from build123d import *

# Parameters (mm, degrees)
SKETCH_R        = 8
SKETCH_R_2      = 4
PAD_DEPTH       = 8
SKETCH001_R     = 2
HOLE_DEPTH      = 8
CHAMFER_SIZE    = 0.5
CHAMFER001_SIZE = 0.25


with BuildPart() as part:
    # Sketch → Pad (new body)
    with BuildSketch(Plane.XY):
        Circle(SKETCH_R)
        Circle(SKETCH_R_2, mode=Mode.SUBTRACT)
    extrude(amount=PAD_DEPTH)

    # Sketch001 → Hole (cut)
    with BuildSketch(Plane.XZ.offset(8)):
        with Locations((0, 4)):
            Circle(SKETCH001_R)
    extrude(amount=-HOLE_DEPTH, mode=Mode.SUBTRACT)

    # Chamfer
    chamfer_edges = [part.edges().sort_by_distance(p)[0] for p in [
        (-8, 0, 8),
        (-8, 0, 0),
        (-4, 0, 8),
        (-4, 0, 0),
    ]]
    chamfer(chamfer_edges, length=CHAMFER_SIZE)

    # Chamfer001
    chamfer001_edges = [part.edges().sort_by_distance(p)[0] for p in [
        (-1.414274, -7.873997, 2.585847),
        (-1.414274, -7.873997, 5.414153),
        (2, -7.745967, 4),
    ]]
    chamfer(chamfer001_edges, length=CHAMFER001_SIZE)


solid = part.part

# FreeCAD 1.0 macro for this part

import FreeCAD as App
import Part
import Sketcher

V = App.Vector


def edges_at(feature, points):
    """Names of the edges that pass closest to the given points."""
    edges = feature.Shape.Edges
    near = lambda p: min(range(len(edges)), key=lambda i: edges[i].distToShape(Part.Vertex(*p))[0])
    return sorted({f"Edge{near(p) + 1}" for p in points})

doc = App.newDocument("Part")
body = doc.addObject("PartDesign::Body", "Body")

# Sketch on XY plane
sketch1 = body.newObject("Sketcher::SketchObject", "Sketch")
sketch1.AttachmentSupport = (doc.getObject("XY_Plane"), [""])
sketch1.MapMode = "FlatFace"
sketch1.addGeometry([
    Part.Circle(V(0, 0, 0), V(0, 0, 1), 8),
    Part.Circle(V(0, 0, 0), V(0, 0, 1), 4),
], False)
sketch1.addConstraint([
    Sketcher.Constraint("Coincident", 0, 3, -1, 1),
    Sketcher.Constraint("Coincident", 1, 3, -1, 1),
    Sketcher.Constraint("Diameter", 0, 16.0),
    Sketcher.Constraint("Diameter", 1, 8.0),
])
pad1 = body.newObject("PartDesign::Pad", "Pad")
pad1.Profile = sketch1
pad1.Length = 8

# Sketch on XZ plane
sketch2 = body.newObject("Sketcher::SketchObject", "Sketch001")
sketch2.AttachmentSupport = (doc.getObject("XZ_Plane"), [""])
sketch2.MapMode = "FlatFace"
sketch2.AttachmentOffset = App.Placement(V(0, 0, 8), App.Rotation())
sketch2.addGeometry(Part.Circle(V(0, 4, 0), V(0, 0, 1), 2), False)
sketch2.addConstraint([
    Sketcher.Constraint("PointOnObject", 0, 3, -2),
    Sketcher.Constraint("Diameter", 0, 4.0),
    Sketcher.Constraint("DistanceY", -1, 1, 0, 3, 4.0),
])
pocket1 = body.newObject("PartDesign::Pocket", "Pocket")
pocket1.Profile = sketch2
pocket1.Length = 8
doc.recompute()

chamfer = body.newObject("PartDesign::Chamfer", "Chamfer")
chamfer.Base = (pocket1, edges_at(pocket1, [
    (-8, 0, 8),
    (-8, 0, 0),
    (-4, 0, 8),
    (-4, 0, 0),
]))
chamfer.Size = 0.5
doc.recompute()

chamfer2 = body.newObject("PartDesign::Chamfer", "Chamfer001")
chamfer2.Base = (chamfer, edges_at(chamfer, [(-2, -7.746, 4), (-2, -7.746, 4), (-2, -7.746, 4)]))
chamfer2.Size = 0.25

doc.recompute()
